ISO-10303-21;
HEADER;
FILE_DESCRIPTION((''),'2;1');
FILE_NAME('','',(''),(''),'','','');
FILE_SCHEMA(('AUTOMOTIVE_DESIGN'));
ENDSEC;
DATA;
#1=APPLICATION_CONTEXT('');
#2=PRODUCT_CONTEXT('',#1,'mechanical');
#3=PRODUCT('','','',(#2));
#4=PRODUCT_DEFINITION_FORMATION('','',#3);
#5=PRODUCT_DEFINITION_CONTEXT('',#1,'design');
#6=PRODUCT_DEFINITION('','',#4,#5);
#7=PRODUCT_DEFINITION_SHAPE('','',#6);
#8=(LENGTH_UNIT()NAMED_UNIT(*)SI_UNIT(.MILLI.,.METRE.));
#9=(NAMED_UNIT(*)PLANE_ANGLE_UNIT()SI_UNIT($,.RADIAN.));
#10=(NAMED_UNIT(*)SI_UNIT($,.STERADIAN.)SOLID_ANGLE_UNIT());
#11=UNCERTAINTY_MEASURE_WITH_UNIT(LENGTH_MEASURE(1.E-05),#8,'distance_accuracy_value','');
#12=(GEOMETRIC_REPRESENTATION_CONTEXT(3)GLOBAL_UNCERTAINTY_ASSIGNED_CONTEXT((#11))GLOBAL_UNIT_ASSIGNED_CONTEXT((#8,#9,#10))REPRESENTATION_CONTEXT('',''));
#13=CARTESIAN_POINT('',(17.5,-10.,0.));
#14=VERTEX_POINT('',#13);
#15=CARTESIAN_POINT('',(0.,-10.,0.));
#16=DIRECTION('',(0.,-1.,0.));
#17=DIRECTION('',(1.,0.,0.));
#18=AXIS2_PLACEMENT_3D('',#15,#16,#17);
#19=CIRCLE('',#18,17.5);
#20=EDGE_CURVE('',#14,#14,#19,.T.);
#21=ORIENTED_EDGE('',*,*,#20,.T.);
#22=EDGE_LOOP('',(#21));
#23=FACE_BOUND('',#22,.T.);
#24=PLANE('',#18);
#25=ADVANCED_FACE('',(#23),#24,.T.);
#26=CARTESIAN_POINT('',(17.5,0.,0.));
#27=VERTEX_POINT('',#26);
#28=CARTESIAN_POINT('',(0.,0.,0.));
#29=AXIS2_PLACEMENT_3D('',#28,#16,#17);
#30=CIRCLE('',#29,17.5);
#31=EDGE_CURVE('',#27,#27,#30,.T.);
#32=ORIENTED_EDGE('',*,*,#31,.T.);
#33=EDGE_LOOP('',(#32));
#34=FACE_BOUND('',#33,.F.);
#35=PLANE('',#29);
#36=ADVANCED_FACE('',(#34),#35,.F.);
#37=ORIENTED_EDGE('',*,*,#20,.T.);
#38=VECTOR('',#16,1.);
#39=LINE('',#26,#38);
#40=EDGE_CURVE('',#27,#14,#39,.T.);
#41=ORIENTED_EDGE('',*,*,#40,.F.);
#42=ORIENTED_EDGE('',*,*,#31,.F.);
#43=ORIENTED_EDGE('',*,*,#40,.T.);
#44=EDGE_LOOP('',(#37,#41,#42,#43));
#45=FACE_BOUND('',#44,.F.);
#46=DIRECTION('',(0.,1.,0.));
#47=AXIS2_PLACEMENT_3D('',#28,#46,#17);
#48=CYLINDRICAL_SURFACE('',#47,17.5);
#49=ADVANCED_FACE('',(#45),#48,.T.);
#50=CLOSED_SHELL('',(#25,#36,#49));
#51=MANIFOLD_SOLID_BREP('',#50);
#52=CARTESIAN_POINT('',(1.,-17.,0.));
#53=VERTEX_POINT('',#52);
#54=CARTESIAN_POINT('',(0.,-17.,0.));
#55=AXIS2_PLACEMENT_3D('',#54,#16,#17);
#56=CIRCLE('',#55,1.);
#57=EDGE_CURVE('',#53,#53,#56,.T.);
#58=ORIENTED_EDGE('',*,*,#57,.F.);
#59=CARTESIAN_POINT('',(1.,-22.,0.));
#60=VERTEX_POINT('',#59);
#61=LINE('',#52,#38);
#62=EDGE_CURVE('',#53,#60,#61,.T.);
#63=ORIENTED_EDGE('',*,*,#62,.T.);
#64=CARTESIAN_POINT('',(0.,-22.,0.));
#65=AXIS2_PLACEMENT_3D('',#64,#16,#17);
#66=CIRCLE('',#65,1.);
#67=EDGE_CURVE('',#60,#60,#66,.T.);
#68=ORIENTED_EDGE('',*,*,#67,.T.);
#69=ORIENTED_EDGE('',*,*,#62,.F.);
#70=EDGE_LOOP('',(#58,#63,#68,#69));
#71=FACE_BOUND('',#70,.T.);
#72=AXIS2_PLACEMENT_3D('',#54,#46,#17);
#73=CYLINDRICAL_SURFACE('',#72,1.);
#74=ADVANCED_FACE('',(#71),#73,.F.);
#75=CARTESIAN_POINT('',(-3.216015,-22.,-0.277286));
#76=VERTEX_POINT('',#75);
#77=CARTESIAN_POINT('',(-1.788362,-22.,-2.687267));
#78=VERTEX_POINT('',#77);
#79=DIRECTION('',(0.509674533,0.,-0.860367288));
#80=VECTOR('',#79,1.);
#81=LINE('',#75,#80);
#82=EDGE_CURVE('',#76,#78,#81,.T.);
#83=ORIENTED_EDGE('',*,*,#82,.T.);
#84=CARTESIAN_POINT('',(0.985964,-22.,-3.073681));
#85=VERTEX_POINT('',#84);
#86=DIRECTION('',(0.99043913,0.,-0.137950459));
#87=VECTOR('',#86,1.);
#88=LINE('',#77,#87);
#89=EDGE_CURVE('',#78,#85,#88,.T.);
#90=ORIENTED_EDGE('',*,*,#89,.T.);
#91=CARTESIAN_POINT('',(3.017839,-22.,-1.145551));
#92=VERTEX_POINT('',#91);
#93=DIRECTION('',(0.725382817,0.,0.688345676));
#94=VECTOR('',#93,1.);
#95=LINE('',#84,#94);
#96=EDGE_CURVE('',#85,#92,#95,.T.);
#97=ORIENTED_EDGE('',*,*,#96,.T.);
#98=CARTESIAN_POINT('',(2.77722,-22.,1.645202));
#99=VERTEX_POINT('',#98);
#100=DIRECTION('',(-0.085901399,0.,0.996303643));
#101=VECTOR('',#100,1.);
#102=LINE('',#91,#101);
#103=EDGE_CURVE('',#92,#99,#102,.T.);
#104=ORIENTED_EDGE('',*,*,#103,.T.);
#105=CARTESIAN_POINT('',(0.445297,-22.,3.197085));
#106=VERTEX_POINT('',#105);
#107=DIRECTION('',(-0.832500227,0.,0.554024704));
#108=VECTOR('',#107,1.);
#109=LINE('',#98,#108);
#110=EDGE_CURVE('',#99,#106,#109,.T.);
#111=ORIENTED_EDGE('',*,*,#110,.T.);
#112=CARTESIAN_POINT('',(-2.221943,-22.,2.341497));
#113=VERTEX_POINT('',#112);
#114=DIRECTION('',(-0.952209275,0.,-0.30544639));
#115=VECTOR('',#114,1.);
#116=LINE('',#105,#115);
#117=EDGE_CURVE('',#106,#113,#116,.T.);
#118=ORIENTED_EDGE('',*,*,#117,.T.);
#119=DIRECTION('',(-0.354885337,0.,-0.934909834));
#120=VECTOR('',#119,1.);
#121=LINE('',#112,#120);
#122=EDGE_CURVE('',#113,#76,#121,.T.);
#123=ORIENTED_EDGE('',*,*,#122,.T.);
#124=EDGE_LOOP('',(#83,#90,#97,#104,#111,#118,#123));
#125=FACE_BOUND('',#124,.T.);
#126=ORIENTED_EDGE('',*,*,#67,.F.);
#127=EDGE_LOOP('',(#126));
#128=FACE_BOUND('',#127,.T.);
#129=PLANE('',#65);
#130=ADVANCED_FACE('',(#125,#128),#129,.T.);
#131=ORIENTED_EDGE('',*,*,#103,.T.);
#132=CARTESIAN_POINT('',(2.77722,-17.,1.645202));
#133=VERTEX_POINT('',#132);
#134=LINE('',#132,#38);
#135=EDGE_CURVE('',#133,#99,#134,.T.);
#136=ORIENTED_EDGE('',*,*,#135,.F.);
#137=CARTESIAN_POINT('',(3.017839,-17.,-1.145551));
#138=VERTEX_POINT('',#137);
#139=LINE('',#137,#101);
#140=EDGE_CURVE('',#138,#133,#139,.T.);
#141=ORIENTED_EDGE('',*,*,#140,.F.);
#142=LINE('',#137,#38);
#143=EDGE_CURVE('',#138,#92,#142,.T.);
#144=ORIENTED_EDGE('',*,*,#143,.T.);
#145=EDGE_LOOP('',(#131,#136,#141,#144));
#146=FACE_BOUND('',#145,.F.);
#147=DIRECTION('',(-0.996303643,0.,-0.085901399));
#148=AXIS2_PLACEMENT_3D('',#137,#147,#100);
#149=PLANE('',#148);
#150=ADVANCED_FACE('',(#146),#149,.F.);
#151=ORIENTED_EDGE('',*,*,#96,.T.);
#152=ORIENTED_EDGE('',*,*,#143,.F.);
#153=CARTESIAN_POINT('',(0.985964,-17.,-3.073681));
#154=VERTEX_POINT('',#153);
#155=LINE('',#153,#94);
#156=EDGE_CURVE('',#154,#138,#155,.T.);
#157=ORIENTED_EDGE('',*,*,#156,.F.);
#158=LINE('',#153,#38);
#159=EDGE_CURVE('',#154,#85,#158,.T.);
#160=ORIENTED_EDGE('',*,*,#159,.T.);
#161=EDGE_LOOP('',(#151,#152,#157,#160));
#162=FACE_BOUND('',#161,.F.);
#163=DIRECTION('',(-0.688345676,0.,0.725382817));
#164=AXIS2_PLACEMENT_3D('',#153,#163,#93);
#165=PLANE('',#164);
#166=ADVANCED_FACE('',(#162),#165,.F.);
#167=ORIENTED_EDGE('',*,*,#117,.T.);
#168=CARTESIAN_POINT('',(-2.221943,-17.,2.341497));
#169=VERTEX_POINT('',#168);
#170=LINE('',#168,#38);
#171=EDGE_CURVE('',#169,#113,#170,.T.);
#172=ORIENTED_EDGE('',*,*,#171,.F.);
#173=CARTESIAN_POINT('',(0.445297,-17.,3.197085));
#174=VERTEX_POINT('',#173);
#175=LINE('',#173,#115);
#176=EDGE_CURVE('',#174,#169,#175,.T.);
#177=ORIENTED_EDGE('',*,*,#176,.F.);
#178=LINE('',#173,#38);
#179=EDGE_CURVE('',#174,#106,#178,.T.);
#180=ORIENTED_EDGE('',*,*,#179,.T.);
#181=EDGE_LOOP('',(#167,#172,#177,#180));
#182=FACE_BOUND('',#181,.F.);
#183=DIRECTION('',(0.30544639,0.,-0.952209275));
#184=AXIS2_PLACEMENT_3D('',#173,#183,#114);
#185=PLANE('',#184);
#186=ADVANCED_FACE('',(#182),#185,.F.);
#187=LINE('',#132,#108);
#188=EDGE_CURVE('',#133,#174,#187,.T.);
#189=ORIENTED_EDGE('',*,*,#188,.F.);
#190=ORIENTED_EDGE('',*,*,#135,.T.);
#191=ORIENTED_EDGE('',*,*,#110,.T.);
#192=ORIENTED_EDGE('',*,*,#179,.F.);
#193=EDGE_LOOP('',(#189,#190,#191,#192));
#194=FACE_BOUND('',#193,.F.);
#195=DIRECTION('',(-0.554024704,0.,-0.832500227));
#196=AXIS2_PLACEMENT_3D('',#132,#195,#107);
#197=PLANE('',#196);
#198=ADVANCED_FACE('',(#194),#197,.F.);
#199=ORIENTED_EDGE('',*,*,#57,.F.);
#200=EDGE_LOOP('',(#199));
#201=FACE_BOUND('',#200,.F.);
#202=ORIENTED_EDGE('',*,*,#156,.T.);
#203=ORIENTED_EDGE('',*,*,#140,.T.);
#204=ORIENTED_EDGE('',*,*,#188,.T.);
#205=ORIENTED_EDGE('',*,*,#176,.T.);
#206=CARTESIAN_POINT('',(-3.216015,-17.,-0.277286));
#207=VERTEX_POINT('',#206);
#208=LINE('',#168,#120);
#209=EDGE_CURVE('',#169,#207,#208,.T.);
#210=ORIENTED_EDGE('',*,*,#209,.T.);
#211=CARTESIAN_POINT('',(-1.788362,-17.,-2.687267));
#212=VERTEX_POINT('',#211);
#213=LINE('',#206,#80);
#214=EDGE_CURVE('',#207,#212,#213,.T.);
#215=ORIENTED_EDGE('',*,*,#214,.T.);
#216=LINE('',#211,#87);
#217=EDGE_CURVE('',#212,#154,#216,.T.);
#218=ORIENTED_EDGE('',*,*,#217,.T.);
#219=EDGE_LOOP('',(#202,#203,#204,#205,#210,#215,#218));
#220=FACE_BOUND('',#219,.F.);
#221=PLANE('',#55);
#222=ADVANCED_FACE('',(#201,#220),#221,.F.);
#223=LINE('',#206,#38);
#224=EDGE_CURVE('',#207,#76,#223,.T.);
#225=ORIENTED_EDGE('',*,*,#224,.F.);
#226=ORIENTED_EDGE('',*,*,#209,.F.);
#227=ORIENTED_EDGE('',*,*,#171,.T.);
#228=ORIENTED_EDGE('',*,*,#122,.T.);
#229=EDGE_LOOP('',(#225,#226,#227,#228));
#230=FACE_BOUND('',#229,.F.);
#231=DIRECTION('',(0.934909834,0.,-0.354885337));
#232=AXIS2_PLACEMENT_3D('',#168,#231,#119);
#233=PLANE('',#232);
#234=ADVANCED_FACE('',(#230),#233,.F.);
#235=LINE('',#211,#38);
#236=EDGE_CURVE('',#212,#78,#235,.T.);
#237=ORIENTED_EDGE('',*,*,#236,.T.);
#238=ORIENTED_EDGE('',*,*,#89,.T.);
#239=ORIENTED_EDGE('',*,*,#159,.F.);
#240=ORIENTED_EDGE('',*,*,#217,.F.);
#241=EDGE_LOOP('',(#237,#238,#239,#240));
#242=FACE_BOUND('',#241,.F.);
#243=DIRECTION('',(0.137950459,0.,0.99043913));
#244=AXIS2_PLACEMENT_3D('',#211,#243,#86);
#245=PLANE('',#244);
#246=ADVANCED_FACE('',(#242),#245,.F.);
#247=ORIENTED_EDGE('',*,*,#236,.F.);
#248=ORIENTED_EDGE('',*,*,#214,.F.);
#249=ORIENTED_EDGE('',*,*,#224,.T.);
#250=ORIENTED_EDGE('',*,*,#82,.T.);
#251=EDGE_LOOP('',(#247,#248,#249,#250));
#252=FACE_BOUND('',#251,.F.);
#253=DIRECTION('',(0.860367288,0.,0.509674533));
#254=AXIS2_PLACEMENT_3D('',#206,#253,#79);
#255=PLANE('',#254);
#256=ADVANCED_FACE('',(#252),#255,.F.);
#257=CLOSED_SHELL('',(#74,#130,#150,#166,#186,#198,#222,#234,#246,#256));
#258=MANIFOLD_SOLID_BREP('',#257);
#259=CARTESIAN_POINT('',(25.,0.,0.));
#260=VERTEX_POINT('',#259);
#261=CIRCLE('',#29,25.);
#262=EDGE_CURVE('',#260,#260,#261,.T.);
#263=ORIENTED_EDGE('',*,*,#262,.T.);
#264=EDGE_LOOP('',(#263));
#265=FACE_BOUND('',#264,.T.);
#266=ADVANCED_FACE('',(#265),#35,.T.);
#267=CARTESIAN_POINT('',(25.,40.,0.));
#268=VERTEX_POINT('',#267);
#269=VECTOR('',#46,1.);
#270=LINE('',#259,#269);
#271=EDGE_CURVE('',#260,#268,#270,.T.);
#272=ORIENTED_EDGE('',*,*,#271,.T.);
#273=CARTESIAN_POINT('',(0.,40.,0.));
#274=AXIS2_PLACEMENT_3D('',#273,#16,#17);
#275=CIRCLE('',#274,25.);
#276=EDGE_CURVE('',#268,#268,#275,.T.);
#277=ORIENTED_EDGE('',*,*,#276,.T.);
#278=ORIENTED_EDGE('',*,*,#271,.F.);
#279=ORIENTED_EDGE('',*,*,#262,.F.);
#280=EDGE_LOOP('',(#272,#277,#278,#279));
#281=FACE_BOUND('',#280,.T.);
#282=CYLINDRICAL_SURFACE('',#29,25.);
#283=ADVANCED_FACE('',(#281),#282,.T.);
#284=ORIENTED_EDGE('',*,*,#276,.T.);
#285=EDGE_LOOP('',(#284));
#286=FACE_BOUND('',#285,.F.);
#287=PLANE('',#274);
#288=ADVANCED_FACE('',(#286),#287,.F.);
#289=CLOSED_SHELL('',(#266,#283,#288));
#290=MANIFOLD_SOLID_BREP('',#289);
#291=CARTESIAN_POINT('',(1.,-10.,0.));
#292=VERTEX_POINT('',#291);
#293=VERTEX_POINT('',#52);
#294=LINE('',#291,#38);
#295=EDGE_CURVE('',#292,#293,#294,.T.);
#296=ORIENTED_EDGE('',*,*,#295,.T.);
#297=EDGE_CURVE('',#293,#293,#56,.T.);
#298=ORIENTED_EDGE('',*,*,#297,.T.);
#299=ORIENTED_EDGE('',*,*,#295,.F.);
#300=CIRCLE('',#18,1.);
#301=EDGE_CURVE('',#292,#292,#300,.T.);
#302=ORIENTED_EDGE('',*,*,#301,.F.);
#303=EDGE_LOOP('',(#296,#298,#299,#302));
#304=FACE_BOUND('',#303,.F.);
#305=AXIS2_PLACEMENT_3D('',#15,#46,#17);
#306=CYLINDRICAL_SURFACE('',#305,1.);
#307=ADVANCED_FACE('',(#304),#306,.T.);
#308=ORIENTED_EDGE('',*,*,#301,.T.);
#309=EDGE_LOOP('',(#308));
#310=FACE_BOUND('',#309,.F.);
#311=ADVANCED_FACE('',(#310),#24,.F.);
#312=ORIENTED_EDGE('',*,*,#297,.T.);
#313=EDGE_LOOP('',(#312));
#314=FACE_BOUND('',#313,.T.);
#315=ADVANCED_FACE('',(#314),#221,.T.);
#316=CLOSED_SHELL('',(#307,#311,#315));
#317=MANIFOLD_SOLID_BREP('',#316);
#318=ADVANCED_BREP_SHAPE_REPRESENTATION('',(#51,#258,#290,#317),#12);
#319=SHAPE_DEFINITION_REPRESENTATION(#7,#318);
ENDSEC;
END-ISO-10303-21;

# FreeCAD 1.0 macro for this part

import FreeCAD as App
import Part
import Sketcher

V = App.Vector


def add_polygon(sketch, points):
    """Adds a closed chain of lines whose ends are joined by coincident constraints."""
    first, n = sketch.GeometryCount, len(points)
    for a, b in zip(points, points[1:] + points[:1]):
        sketch.addGeometry(Part.LineSegment(App.Vector(*a, 0), App.Vector(*b, 0)), False)
    for i in range(n):
        sketch.addConstraint(Sketcher.Constraint("Coincident", first + i, 2, first + (i + 1) % n, 1))

doc = App.newDocument("Part")
body = doc.addObject("PartDesign::Body", "Body")

sketch1 = body.newObject("Sketcher::SketchObject", "Sketch")
sketch1.AttachmentSupport = (doc.getObject("XZ_Plane"), [""])
sketch1.MapMode = "FlatFace"
sketch1.addGeometry(Part.Circle(V(0, 0, 0), V(0, 0, 1), 25), False)
sketch1.addConstraint([
    Sketcher.Constraint("Coincident", 0, 3, -1, 1),
    Sketcher.Constraint("Diameter", 0, 50.0),
])
pad1 = body.newObject("PartDesign::Pad", "Pad")
pad1.Profile = sketch1
pad1.Length = 40
pad1.Reversed = True
body2 = doc.addObject("PartDesign::Body", "Body001")

sketch2 = body2.newObject("Sketcher::SketchObject", "Sketch001")
sketch2.AttachmentSupport = (doc.getObject("XZ_Plane001"), [""])
sketch2.MapMode = "FlatFace"
sketch2.addGeometry(Part.Circle(V(0, 0, 0), V(0, 0, 1), 18), False)
sketch2.addConstraint([
    Sketcher.Constraint("Coincident", 0, 3, -1, 1),
    Sketcher.Constraint("Diameter", 0, 35.0),
])
pad2 = body2.newObject("PartDesign::Pad", "Pad001")
pad2.Profile = sketch2
pad2.Length = 10
body3 = doc.addObject("PartDesign::Body", "Body002")

sketch3 = body3.newObject("Sketcher::SketchObject", "Sketch002")
sketch3.AttachmentSupport = (doc.getObject("XZ_Plane002"), [""])
sketch3.MapMode = "FlatFace"
sketch3.AttachmentOffset = App.Placement(V(0, 0, 10), App.Rotation())
sketch3.addGeometry(Part.Circle(V(0, 0, 0), V(0, 0, 1), 1), False)
sketch3.addConstraint([
    Sketcher.Constraint("Coincident", 0, 3, -1, 1),
    Sketcher.Constraint("Diameter", 0, 2.0),
])
pad3 = body3.newObject("PartDesign::Pad", "Pad002")
pad3.Profile = sketch3
pad3.Length = 7
body4 = doc.addObject("PartDesign::Body", "Body003")

sketch4 = body4.newObject("Sketcher::SketchObject", "Sketch003")
sketch4.AttachmentSupport = (doc.getObject("XZ_Plane003"), [""])
sketch4.MapMode = "FlatFace"
sketch4.AttachmentOffset = App.Placement(V(0, 0, 17), App.Rotation())
add_polygon(sketch4, [(2.8, 1.6), (0.4, 3.2), (-2.2, 2.3), (-3.2, -0.3), (-1.8, -2.7), (1, -3.1), (3, -1.1)])
sketch4.addGeometry(Part.Circle(V(0, 0, 0), V(0, 0, 1), 1), False)
sketch4.addConstraint([
    Sketcher.Constraint("Coincident", 7, 3, -1, 1),
    Sketcher.Constraint("Equal", 0, 1),
    Sketcher.Constraint("Equal", 1, 2),
    Sketcher.Constraint("Equal", 2, 3),
    Sketcher.Constraint("Equal", 3, 4),
    Sketcher.Constraint("Equal", 4, 5),
    Sketcher.Constraint("Equal", 5, 6),
    Sketcher.Constraint("Diameter", 7, 2.0),
    Sketcher.Constraint("DistanceX", 3, 2, 5, 2, 4.806201),
    Sketcher.Constraint("DistanceY", 4, 2, -1, 1, 3.073681),
    Sketcher.Constraint("DistanceX", -1, 1, 5, 2, 3.017839),
    Sketcher.Constraint("DistanceY", 5, 2, -1, 1, 1.145551),
    Sketcher.Constraint("DistanceX", -1, 1, 6, 2, 2.77722),
    Sketcher.Constraint("DistanceX", 1, 2, 0, 2, 2.66724),
    Sketcher.Constraint("DistanceY", 1, 2, 0, 2, 0.855588),
    Sketcher.Constraint("DistanceY", 2, 2, 0, 2, 3.474371),
])
pad4 = body4.newObject("PartDesign::Pad", "Pad003")
pad4.Profile = sketch4
pad4.Length = 5

doc.recompute()
